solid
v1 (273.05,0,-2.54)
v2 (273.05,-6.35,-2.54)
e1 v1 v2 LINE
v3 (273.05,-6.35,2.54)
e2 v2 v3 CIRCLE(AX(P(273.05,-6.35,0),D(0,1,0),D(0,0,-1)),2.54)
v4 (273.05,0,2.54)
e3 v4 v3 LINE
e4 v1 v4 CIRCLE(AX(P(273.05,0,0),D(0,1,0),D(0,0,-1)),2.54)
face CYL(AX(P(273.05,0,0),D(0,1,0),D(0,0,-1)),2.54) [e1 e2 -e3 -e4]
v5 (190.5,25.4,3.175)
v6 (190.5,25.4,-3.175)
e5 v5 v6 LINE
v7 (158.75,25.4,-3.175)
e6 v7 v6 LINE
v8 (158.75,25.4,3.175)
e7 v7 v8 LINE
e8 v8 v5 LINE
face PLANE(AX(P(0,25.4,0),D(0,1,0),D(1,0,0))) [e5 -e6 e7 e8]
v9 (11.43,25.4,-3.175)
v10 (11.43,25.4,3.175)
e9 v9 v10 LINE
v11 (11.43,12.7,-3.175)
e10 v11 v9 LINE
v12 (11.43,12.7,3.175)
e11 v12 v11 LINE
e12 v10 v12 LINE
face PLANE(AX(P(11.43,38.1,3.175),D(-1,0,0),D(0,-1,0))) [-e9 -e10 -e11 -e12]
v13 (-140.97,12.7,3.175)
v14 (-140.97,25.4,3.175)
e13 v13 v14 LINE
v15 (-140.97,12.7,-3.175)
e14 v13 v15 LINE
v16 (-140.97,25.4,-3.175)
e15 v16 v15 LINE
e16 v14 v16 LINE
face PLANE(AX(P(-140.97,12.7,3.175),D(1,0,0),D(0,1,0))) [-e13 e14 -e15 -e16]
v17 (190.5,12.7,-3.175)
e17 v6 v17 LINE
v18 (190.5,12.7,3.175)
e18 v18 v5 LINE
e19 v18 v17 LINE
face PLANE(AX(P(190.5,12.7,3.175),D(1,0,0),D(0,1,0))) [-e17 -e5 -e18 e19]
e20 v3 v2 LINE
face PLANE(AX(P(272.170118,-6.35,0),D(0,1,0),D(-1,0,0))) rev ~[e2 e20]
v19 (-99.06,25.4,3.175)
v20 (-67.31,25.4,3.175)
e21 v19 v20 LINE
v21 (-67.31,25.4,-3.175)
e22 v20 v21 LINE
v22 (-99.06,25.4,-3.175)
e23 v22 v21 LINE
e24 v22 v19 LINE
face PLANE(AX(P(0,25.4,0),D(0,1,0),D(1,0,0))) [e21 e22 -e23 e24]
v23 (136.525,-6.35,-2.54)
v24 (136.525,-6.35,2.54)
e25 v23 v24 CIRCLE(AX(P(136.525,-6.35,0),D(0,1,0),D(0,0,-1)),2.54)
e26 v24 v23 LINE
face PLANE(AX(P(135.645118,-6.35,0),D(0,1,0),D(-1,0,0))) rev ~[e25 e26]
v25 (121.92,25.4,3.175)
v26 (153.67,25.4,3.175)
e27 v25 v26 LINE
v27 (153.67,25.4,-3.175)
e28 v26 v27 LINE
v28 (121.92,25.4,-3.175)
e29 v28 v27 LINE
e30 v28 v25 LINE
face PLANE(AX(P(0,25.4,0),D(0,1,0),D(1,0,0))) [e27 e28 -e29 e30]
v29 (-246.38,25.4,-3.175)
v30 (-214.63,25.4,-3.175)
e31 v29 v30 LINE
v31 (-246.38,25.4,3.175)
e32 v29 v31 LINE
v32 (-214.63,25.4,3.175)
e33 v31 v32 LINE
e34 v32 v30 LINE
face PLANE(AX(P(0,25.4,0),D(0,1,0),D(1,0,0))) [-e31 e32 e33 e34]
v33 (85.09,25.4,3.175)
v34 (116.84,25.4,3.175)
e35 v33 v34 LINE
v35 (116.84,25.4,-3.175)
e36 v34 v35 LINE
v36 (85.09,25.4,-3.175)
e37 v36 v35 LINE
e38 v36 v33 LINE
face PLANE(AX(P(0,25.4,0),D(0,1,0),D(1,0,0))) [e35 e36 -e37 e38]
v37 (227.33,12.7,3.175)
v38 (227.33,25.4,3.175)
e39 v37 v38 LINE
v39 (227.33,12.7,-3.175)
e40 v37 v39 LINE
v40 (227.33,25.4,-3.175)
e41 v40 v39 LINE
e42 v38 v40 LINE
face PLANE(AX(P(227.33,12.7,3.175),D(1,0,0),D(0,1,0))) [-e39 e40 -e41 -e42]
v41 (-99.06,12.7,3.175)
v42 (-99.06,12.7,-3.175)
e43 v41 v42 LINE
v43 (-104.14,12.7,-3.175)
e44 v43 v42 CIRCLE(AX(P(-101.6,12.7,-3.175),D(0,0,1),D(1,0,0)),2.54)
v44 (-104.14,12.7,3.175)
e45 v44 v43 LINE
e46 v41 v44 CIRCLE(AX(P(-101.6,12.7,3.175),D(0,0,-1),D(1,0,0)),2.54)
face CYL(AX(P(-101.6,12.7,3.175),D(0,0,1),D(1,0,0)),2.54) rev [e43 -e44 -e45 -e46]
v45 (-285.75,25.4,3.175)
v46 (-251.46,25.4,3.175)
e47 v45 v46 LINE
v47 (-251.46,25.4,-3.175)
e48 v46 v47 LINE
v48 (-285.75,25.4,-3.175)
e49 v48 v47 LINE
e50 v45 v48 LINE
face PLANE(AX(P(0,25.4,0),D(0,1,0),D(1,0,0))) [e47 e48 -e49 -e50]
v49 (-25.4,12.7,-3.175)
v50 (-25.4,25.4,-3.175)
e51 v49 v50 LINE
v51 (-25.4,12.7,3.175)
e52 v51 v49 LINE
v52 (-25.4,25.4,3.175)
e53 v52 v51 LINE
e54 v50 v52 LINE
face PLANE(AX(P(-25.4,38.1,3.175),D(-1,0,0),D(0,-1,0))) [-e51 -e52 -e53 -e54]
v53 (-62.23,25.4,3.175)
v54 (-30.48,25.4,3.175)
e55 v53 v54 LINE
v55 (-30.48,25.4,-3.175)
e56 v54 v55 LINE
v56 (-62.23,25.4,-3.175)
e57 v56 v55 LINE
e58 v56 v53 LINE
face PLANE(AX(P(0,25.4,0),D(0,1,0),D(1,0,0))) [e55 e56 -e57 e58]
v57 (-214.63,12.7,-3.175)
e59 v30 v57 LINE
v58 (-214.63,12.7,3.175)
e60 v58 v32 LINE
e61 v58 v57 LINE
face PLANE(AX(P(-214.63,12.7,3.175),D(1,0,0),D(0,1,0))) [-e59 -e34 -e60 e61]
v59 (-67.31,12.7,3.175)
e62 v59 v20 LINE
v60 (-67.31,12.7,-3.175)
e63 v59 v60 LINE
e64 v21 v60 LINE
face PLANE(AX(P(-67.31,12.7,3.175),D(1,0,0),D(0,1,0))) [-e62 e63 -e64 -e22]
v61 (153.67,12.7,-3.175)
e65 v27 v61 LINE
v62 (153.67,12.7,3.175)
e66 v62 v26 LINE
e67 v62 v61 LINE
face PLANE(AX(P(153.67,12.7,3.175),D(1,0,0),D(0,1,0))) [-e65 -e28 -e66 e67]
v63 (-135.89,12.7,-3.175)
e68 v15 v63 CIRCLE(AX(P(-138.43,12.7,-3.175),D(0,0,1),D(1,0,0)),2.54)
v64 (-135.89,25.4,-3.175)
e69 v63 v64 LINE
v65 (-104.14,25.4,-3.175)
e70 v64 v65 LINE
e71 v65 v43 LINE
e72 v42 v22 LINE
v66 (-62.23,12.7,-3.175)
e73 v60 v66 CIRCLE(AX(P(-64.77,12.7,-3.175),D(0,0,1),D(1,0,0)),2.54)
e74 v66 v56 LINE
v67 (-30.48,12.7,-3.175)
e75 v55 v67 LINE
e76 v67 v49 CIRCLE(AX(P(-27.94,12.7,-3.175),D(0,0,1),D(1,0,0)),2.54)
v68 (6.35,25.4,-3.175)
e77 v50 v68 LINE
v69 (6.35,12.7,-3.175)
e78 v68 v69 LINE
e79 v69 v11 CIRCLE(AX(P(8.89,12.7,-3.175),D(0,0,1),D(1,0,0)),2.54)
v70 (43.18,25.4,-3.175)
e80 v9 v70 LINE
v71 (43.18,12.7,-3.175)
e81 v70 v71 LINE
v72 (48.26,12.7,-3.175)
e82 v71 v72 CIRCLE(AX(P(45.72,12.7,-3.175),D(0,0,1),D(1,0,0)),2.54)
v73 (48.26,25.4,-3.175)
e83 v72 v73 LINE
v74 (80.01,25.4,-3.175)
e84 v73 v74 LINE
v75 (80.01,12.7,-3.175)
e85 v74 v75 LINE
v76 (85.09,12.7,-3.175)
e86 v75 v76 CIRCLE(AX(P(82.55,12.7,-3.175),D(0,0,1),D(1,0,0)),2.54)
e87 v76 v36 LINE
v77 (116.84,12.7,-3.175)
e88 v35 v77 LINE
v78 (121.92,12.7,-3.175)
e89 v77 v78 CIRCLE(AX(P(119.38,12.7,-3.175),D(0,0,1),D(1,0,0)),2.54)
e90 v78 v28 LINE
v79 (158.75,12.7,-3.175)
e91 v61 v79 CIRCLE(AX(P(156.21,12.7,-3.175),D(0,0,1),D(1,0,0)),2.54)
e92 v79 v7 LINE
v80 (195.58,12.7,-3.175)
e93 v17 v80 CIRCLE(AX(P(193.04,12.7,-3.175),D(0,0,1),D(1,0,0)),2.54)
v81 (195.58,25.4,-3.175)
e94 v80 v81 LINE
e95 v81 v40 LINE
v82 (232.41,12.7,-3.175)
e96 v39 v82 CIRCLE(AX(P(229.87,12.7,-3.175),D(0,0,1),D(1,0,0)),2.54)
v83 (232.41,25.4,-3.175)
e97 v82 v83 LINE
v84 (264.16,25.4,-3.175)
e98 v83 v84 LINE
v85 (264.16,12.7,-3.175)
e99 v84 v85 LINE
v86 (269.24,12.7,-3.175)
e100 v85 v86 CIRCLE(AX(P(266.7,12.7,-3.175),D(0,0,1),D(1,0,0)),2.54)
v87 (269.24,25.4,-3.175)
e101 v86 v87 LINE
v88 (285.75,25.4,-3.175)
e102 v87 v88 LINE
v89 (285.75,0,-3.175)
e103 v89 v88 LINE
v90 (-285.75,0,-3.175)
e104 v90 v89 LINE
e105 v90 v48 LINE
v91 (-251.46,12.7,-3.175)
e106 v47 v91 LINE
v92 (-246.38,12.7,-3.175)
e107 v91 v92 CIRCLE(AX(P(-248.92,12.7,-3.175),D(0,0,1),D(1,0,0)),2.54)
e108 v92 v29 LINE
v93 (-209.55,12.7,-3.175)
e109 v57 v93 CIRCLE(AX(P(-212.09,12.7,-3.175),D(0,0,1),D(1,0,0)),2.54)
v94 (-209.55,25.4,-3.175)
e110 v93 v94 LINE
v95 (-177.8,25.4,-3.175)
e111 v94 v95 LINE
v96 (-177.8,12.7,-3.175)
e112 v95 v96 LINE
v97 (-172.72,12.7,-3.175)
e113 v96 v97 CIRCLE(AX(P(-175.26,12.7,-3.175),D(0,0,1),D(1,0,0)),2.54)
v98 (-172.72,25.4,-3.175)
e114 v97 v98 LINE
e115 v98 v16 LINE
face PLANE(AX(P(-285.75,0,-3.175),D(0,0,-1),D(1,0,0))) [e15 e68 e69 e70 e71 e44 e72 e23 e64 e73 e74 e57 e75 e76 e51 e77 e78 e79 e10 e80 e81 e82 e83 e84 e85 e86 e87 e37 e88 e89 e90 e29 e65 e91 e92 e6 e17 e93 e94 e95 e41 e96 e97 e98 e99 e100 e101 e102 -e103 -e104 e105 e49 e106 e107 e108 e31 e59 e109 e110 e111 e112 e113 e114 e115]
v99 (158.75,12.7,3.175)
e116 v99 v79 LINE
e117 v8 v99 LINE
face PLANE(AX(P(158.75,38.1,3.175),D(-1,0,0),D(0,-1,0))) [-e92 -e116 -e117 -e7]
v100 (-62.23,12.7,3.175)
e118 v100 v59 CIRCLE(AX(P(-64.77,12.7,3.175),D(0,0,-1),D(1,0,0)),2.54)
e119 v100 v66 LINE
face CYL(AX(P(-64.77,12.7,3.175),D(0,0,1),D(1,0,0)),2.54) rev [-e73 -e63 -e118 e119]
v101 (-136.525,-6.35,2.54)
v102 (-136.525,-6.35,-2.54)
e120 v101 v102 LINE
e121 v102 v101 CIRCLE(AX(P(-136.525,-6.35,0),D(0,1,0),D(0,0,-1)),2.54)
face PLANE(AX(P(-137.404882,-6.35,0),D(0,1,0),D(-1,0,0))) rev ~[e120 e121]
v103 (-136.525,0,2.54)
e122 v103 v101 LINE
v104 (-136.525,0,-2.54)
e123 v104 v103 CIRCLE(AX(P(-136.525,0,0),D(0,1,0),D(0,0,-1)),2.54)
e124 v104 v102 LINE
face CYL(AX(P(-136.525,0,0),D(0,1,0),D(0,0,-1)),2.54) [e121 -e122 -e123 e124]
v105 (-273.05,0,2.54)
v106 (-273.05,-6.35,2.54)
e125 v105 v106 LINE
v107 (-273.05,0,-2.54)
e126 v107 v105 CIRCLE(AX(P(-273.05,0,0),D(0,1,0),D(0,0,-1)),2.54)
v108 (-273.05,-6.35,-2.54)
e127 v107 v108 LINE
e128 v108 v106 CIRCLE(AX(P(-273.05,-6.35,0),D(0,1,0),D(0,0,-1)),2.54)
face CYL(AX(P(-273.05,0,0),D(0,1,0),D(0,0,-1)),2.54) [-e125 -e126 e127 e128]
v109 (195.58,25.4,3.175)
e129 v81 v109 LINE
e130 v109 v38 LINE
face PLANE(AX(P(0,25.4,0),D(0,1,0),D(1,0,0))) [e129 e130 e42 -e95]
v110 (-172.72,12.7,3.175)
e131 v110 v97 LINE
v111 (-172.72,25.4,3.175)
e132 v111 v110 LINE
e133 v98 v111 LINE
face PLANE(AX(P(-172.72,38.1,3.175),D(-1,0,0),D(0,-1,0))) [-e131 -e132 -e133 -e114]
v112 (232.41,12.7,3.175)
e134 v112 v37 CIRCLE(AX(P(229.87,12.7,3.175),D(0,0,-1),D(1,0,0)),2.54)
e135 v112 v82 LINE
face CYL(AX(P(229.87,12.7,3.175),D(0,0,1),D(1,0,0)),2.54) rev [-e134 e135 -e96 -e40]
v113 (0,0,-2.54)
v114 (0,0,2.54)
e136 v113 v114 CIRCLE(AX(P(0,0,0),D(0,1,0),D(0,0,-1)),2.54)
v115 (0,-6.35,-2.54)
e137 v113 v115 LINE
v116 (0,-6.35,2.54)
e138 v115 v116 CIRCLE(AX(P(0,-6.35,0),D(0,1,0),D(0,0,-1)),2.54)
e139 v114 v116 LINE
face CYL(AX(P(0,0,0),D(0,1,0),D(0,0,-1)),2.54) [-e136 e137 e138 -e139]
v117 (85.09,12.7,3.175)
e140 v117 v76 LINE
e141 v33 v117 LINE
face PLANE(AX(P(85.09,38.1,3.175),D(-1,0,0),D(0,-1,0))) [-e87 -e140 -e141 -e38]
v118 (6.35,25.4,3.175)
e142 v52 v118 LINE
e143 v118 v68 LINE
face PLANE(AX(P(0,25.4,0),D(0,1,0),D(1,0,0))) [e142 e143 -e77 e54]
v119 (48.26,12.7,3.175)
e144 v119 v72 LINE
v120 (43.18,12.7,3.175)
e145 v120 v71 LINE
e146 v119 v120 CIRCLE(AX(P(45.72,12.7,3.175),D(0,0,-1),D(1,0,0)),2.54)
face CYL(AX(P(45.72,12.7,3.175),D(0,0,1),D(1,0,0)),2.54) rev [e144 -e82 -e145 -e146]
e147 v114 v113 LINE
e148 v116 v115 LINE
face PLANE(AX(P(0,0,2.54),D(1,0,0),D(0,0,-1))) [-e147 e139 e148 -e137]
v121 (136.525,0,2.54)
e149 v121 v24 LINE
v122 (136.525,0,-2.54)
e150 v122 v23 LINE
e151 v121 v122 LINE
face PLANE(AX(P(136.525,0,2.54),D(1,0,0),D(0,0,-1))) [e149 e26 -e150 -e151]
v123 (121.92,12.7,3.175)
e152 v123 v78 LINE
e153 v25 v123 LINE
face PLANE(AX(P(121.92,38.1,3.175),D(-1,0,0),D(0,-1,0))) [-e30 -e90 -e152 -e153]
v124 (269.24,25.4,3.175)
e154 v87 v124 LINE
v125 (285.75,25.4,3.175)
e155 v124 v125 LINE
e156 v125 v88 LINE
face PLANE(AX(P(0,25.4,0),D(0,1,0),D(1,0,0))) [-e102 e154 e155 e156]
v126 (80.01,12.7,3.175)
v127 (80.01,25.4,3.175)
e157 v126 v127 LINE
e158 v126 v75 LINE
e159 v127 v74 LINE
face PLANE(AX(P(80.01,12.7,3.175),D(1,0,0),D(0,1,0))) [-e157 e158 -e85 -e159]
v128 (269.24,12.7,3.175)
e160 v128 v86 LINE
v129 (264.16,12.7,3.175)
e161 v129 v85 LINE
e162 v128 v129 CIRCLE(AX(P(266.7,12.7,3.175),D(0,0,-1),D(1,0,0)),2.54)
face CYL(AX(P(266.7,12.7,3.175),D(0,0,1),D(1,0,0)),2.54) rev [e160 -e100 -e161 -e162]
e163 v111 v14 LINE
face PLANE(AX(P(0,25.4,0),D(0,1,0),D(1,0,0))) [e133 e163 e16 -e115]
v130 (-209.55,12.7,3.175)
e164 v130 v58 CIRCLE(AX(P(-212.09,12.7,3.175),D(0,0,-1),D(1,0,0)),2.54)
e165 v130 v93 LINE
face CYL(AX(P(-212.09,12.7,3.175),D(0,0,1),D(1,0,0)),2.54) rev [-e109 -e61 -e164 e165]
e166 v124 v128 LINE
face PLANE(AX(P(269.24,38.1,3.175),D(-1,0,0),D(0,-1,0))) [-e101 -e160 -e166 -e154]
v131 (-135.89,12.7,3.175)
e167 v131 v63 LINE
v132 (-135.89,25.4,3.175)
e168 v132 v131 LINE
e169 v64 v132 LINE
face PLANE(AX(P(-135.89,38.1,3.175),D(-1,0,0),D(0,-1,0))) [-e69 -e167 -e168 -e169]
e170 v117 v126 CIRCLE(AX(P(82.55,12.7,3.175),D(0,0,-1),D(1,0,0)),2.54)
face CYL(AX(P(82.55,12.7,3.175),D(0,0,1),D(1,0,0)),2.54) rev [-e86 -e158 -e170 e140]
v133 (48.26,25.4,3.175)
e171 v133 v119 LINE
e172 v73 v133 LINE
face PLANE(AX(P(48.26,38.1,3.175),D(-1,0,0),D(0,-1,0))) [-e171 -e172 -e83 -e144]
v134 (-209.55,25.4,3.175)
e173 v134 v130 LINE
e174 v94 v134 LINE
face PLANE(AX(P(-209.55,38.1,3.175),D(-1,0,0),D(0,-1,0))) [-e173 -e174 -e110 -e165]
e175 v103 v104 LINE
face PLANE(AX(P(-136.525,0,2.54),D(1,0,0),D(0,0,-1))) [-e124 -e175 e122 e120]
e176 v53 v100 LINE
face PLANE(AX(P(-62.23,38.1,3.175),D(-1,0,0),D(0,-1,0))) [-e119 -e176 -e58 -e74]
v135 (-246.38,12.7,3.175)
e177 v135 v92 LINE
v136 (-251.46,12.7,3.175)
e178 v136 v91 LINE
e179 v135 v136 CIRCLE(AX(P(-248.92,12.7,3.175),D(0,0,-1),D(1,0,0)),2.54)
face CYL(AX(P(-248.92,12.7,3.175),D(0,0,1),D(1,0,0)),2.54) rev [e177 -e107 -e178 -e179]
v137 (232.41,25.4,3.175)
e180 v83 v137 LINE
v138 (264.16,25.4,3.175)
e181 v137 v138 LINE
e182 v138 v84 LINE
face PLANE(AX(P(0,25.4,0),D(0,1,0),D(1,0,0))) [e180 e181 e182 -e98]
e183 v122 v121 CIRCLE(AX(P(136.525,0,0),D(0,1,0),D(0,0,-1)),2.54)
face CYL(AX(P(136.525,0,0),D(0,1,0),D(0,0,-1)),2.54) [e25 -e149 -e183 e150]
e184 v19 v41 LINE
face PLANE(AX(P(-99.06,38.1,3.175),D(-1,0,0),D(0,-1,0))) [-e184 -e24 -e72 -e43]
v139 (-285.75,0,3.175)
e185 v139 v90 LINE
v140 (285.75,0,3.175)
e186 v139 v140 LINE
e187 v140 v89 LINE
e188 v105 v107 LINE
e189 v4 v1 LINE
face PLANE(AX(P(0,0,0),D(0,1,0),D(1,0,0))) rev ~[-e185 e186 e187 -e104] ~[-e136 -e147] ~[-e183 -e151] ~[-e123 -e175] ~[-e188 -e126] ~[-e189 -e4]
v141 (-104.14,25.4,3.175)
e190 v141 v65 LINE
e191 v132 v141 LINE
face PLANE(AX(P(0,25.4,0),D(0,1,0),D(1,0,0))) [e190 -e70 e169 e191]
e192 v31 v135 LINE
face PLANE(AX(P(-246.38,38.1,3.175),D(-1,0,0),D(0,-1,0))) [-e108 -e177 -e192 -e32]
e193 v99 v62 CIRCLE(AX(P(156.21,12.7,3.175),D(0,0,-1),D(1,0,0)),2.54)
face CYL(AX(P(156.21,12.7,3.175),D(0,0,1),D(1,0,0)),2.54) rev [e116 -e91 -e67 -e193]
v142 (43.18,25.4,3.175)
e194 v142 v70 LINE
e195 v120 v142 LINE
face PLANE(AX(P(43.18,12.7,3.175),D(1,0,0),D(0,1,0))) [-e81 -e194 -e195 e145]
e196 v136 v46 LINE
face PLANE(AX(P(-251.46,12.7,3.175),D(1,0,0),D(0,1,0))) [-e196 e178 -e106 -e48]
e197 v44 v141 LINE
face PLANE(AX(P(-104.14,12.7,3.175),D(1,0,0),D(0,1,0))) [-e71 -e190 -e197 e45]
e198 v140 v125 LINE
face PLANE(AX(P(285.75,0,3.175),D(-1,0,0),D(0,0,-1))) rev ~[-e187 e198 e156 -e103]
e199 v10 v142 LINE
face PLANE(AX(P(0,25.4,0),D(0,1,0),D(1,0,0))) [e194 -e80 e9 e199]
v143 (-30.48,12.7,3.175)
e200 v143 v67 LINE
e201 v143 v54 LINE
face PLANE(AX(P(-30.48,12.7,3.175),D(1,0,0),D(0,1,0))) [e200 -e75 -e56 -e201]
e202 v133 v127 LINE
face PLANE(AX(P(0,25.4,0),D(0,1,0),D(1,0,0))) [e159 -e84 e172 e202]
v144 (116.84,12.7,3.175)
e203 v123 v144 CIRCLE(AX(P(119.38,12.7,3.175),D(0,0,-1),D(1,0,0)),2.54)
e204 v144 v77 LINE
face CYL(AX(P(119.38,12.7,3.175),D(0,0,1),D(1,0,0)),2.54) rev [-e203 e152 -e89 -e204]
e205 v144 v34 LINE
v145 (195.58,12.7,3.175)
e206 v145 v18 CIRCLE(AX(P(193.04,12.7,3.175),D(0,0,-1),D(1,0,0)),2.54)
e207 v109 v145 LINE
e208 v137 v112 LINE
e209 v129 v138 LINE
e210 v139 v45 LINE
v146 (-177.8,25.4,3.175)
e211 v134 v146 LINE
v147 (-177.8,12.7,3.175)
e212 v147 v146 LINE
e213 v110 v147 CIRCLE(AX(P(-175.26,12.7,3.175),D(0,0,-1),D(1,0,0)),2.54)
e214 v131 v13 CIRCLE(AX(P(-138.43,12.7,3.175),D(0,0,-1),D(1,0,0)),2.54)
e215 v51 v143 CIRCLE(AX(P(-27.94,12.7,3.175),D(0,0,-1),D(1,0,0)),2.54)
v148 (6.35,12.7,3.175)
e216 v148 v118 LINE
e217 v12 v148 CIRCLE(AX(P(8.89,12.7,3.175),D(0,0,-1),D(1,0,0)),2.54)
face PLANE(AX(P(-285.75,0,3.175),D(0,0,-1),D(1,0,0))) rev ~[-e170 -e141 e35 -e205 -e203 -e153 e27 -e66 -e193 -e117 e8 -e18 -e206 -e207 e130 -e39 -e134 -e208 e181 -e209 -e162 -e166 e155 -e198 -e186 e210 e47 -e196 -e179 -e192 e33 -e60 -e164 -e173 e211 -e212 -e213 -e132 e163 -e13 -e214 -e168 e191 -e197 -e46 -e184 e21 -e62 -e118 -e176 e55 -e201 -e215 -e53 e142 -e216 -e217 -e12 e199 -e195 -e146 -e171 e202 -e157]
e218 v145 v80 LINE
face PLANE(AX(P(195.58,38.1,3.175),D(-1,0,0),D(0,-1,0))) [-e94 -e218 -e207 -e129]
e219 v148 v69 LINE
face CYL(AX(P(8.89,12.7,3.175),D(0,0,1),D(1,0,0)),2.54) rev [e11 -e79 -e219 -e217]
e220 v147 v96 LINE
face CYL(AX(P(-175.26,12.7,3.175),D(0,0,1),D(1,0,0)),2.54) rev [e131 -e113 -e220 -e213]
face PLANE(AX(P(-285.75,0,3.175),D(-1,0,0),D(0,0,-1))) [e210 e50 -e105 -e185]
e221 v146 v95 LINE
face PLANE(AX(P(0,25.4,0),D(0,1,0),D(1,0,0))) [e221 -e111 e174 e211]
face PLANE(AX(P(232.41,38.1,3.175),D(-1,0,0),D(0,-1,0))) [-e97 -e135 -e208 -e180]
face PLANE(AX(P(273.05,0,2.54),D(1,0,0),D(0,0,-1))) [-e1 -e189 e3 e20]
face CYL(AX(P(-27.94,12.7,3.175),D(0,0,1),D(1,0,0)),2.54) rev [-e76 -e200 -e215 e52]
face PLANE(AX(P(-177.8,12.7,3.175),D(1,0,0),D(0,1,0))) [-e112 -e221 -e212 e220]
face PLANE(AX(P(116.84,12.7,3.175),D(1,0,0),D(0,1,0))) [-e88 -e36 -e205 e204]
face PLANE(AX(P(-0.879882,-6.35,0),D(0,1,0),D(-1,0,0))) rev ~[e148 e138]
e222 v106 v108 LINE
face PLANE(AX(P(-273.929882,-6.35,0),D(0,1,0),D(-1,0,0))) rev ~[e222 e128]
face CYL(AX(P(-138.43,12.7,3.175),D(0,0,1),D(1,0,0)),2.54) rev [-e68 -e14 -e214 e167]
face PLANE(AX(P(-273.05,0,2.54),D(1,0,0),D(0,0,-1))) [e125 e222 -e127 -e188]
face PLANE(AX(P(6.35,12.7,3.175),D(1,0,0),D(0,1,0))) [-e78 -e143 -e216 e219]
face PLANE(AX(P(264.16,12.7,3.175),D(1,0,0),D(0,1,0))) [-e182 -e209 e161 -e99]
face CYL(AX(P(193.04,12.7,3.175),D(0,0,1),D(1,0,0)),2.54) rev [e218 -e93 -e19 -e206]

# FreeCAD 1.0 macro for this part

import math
import FreeCAD as App
import Part
import Sketcher
Q = App.Units.Quantity

doc = App.newDocument("Part")
body = doc.addObject("PartDesign::Body", "Body")

sketch1 = body.newObject("Sketcher::SketchObject", "Sketch")
sketch1.AttachmentSupport = (doc.getObject("XZ_Plane"), [""])
sketch1.MapMode = "FlatFace"
sketch1.addGeometry(Part.LineSegment(App.Vector(-285.75, -3.175, 0), App.Vector(-285.75, 3.175, 0)), False)
sketch1.addGeometry(Part.LineSegment(App.Vector(-285.75, 3.175, 0), App.Vector(285.75, 3.175, 0)), False)
sketch1.addGeometry(Part.LineSegment(App.Vector(285.75, 3.175, 0), App.Vector(285.75, -3.175, 0)), False)
sketch1.addGeometry(Part.LineSegment(App.Vector(285.75, -3.175, 0), App.Vector(-285.75, -3.175, 0)), False)
sketch1.addConstraint(Sketcher.Constraint("Coincident", 0, 2, 1, 1))
sketch1.addConstraint(Sketcher.Constraint("Coincident", 1, 2, 2, 1))
sketch1.addConstraint(Sketcher.Constraint("Coincident", 2, 2, 3, 1))
sketch1.addConstraint(Sketcher.Constraint("Coincident", 3, 2, 0, 1))
sketch1.addConstraint(Sketcher.Constraint("Vertical", 0))
sketch1.addConstraint(Sketcher.Constraint("Horizontal", 1))
sketch1.addConstraint(Sketcher.Constraint("Vertical", 2))
sketch1.addConstraint(Sketcher.Constraint("Horizontal", 3))
sketch1.addConstraint(Sketcher.Constraint("Symmetric", 0, 2, 2, 2, -1, 1))
sketch1.addConstraint(Sketcher.Constraint("DistanceX", 1, 1, 1, 2, Q("22.5 in")))
sketch1.addConstraint(Sketcher.Constraint("DistanceY", 0, 1, 0, 2, Q("0.25 in")))
pad1 = body.newObject("PartDesign::Pad", "Pad")
pad1.Profile = sketch1
pad1.Length = Q("1 in")
pad1.Reversed = True

sketch2 = body.newObject("Sketcher::SketchObject", "Sketch001")
sketch2.AttachmentSupport = (doc.getObject("XZ_Plane"), [""])
sketch2.MapMode = "FlatFace"
sketch2.addGeometry(Part.LineSegment(App.Vector(-273.05, -2.54, 0), App.Vector(-273.05, 2.54, 0)), False)
sketch2.addGeometry(Part.ArcOfCircle(Part.Circle(App.Vector(-273.05, 0, 0), App.Vector(0, 0, 1), 2.54), math.radians(90), math.radians(270)), False)
sketch2.addGeometry(Part.LineSegment(App.Vector(-136.525, -2.54, 0), App.Vector(-136.525, 2.54, 0)), False)
sketch2.addGeometry(Part.ArcOfCircle(Part.Circle(App.Vector(-136.525, 0, 0), App.Vector(0, 0, 1), 2.54), math.radians(90), math.radians(270)), False)
sketch2.addGeometry(Part.LineSegment(App.Vector(0, -2.54, 0), App.Vector(0, 2.54, 0)), False)
sketch2.addGeometry(Part.ArcOfCircle(Part.Circle(App.Vector(0, 0, 0), App.Vector(0, 0, 1), 2.54), math.radians(90), math.radians(270)), False)
sketch2.addGeometry(Part.LineSegment(App.Vector(136.525, -2.54, 0), App.Vector(136.525, 2.54, 0)), False)
sketch2.addGeometry(Part.ArcOfCircle(Part.Circle(App.Vector(136.525, 0, 0), App.Vector(0, 0, 1), 2.54), math.radians(90), math.radians(270)), False)
sketch2.addGeometry(Part.LineSegment(App.Vector(273.05, -2.54, 0), App.Vector(273.05, 2.54, 0)), False)
sketch2.addGeometry(Part.ArcOfCircle(Part.Circle(App.Vector(273.05, 0, 0), App.Vector(0, 0, 1), 2.54), math.radians(90), math.radians(270)), False)
sketch2.addConstraint(Sketcher.Constraint("Coincident", 0, 1, 1, 2))
sketch2.addConstraint(Sketcher.Constraint("Coincident", 1, 1, 0, 2))
sketch2.addConstraint(Sketcher.Constraint("Coincident", 2, 1, 3, 2))
sketch2.addConstraint(Sketcher.Constraint("Coincident", 3, 1, 2, 2))
sketch2.addConstraint(Sketcher.Constraint("Coincident", 4, 1, 5, 2))
sketch2.addConstraint(Sketcher.Constraint("Coincident", 5, 1, 4, 2))
sketch2.addConstraint(Sketcher.Constraint("Coincident", 6, 1, 7, 2))
sketch2.addConstraint(Sketcher.Constraint("Coincident", 7, 1, 6, 2))
sketch2.addConstraint(Sketcher.Constraint("Coincident", 8, 1, 9, 2))
sketch2.addConstraint(Sketcher.Constraint("Coincident", 9, 1, 8, 2))
sketch2.addConstraint(Sketcher.Constraint("Vertical", 0))
sketch2.addConstraint(Sketcher.Constraint("Vertical", 2))
sketch2.addConstraint(Sketcher.Constraint("Vertical", 4))
sketch2.addConstraint(Sketcher.Constraint("Vertical", 6))
sketch2.addConstraint(Sketcher.Constraint("Vertical", 8))
sketch2.addConstraint(Sketcher.Constraint("Coincident", 5, 3, -1, 1))
sketch2.addConstraint(Sketcher.Constraint("Equal", 1, 3))
sketch2.addConstraint(Sketcher.Constraint("Equal", 3, 5))
sketch2.addConstraint(Sketcher.Constraint("Equal", 5, 7))
sketch2.addConstraint(Sketcher.Constraint("Equal", 7, 9))
sketch2.addConstraint(Sketcher.Constraint("Symmetric", 3, 3, 7, 3, -1, 1))
sketch2.addConstraint(Sketcher.Constraint("Symmetric", 1, 3, 9, 3, -1, 1))
sketch2.addConstraint(Sketcher.Constraint("Symmetric", 2, 1, 6, 1, -2))
sketch2.addConstraint(Sketcher.Constraint("Symmetric", 0, 1, 8, 1, -2))
sketch2.addConstraint(Sketcher.Constraint("PointOnObject", 4, 1, -2))
sketch2.addConstraint(Sketcher.Constraint("Vertical", 1, 3, 0, 1))
sketch2.addConstraint(Sketcher.Constraint("Vertical", 3, 3, 2, 1))
sketch2.addConstraint(Sketcher.Constraint("Radius", 1, Q("0.1 in")))
sketch2.addConstraint(Sketcher.Constraint("DistanceX", 1, 3, 9, 3, Q("21.5 in")))
sketch2.addConstraint(Sketcher.Constraint("DistanceX", 3, 3, 7, 3, Q("10.75 in")))
pad2 = body.newObject("PartDesign::Pad", "Pad001")
pad2.Profile = sketch2
pad2.Length = Q("0.25 in")

sketch3 = body.newObject("Sketcher::SketchObject", "Sketch002")
sketch3.AttachmentSupport = (doc.getObject("XY_Plane"), [""])
sketch3.MapMode = "FlatFace"
sketch3.AttachmentOffset = App.Placement(App.Vector(0, 0, 0.125 * 25.4), App.Rotation())
sketch3.addGeometry(Part.LineSegment(App.Vector(-246.38, 12.7, 0), App.Vector(-246.38, 38.1, 0)), False)
sketch3.addGeometry(Part.ArcOfCircle(Part.Circle(App.Vector(-248.92, 38.1, 0), App.Vector(0, 0, 1), 2.54), math.radians(0), math.radians(180)), False)
sketch3.addGeometry(Part.LineSegment(App.Vector(-251.46, 38.1, 0), App.Vector(-251.46, 12.7, 0)), False)
sketch3.addGeometry(Part.ArcOfCircle(Part.Circle(App.Vector(-248.92, 12.7, 0), App.Vector(0, 0, 1), 2.54), math.radians(180), math.radians(360)), False)
sketch3.addGeometry(Part.LineSegment(App.Vector(-209.55, 12.7, 0), App.Vector(-209.55, 38.1, 0)), False)
sketch3.addGeometry(Part.ArcOfCircle(Part.Circle(App.Vector(-212.09, 38.1, 0), App.Vector(0, 0, 1), 2.54), math.radians(0), math.radians(180)), False)
sketch3.addGeometry(Part.LineSegment(App.Vector(-214.63, 38.1, 0), App.Vector(-214.63, 12.7, 0)), False)
sketch3.addGeometry(Part.ArcOfCircle(Part.Circle(App.Vector(-212.09, 12.7, 0), App.Vector(0, 0, 1), 2.54), math.radians(180), math.radians(360)), False)
sketch3.addGeometry(Part.LineSegment(App.Vector(-172.72, 12.7, 0), App.Vector(-172.72, 38.1, 0)), False)
sketch3.addGeometry(Part.ArcOfCircle(Part.Circle(App.Vector(-175.26, 38.1, 0), App.Vector(0, 0, 1), 2.54), math.radians(0), math.radians(180)), False)
sketch3.addGeometry(Part.LineSegment(App.Vector(-177.8, 38.1, 0), App.Vector(-177.8, 12.7, 0)), False)
sketch3.addGeometry(Part.ArcOfCircle(Part.Circle(App.Vector(-175.26, 12.7, 0), App.Vector(0, 0, 1), 2.54), math.radians(180), math.radians(360)), False)
sketch3.addGeometry(Part.LineSegment(App.Vector(-135.89, 12.7, 0), App.Vector(-135.89, 38.1, 0)), False)
sketch3.addGeometry(Part.ArcOfCircle(Part.Circle(App.Vector(-138.43, 38.1, 0), App.Vector(0, 0, 1), 2.54), math.radians(0), math.radians(180)), False)
sketch3.addGeometry(Part.LineSegment(App.Vector(-140.97, 38.1, 0), App.Vector(-140.97, 12.7, 0)), False)
sketch3.addGeometry(Part.ArcOfCircle(Part.Circle(App.Vector(-138.43, 12.7, 0), App.Vector(0, 0, 1), 2.54), math.radians(180), math.radians(360)), False)
sketch3.addGeometry(Part.LineSegment(App.Vector(-99.06, 12.7, 0), App.Vector(-99.06, 38.1, 0)), False)
sketch3.addGeometry(Part.ArcOfCircle(Part.Circle(App.Vector(-101.6, 38.1, 0), App.Vector(0, 0, 1), 2.54), math.radians(0), math.radians(180)), False)
sketch3.addGeometry(Part.LineSegment(App.Vector(-104.14, 38.1, 0), App.Vector(-104.14, 12.7, 0)), False)
sketch3.addGeometry(Part.ArcOfCircle(Part.Circle(App.Vector(-101.6, 12.7, 0), App.Vector(0, 0, 1), 2.54), math.radians(180), math.radians(360)), False)
sketch3.addGeometry(Part.LineSegment(App.Vector(-62.23, 12.7, 0), App.Vector(-62.23, 38.1, 0)), False)
sketch3.addGeometry(Part.ArcOfCircle(Part.Circle(App.Vector(-64.77, 38.1, 0), App.Vector(0, 0, 1), 2.54), math.radians(0), math.radians(180)), False)
sketch3.addGeometry(Part.LineSegment(App.Vector(-67.31, 38.1, 0), App.Vector(-67.31, 12.7, 0)), False)
sketch3.addGeometry(Part.ArcOfCircle(Part.Circle(App.Vector(-64.77, 12.7, 0), App.Vector(0, 0, 1), 2.54), math.radians(180), math.radians(360)), False)
sketch3.addGeometry(Part.LineSegment(App.Vector(-25.4, 12.7, 0), App.Vector(-25.4, 38.1, 0)), False)
sketch3.addGeometry(Part.ArcOfCircle(Part.Circle(App.Vector(-27.94, 38.1, 0), App.Vector(0, 0, 1), 2.54), math.radians(0), math.radians(180)), False)
sketch3.addGeometry(Part.LineSegment(App.Vector(-30.48, 38.1, 0), App.Vector(-30.48, 12.7, 0)), False)
sketch3.addGeometry(Part.ArcOfCircle(Part.Circle(App.Vector(-27.94, 12.7, 0), App.Vector(0, 0, 1), 2.54), math.radians(180), math.radians(360)), False)
sketch3.addGeometry(Part.LineSegment(App.Vector(11.43, 12.7, 0), App.Vector(11.43, 38.1, 0)), False)
sketch3.addGeometry(Part.ArcOfCircle(Part.Circle(App.Vector(8.89, 38.1, 0), App.Vector(0, 0, 1), 2.54), math.radians(0), math.radians(180)), False)
sketch3.addGeometry(Part.LineSegment(App.Vector(6.35, 38.1, 0), App.Vector(6.35, 12.7, 0)), False)
sketch3.addGeometry(Part.ArcOfCircle(Part.Circle(App.Vector(8.89, 12.7, 0), App.Vector(0, 0, 1), 2.54), math.radians(180), math.radians(360)), False)
sketch3.addGeometry(Part.LineSegment(App.Vector(48.26, 12.7, 0), App.Vector(48.26, 38.1, 0)), False)
sketch3.addGeometry(Part.ArcOfCircle(Part.Circle(App.Vector(45.72, 38.1, 0), App.Vector(0, 0, 1), 2.54), math.radians(0), math.radians(180)), False)
sketch3.addGeometry(Part.LineSegment(App.Vector(43.18, 38.1, 0), App.Vector(43.18, 12.7, 0)), False)
sketch3.addGeometry(Part.ArcOfCircle(Part.Circle(App.Vector(45.72, 12.7, 0), App.Vector(0, 0, 1), 2.54), math.radians(180), math.radians(360)), False)
sketch3.addGeometry(Part.LineSegment(App.Vector(85.09, 12.7, 0), App.Vector(85.09, 38.1, 0)), False)
sketch3.addGeometry(Part.ArcOfCircle(Part.Circle(App.Vector(82.55, 38.1, 0), App.Vector(0, 0, 1), 2.54), math.radians(0), math.radians(180)), False)
sketch3.addGeometry(Part.LineSegment(App.Vector(80.01, 38.1, 0), App.Vector(80.01, 12.7, 0)), False)
sketch3.addGeometry(Part.ArcOfCircle(Part.Circle(App.Vector(82.55, 12.7, 0), App.Vector(0, 0, 1), 2.54), math.radians(180), math.radians(360)), False)
sketch3.addGeometry(Part.LineSegment(App.Vector(121.92, 12.7, 0), App.Vector(121.92, 38.1, 0)), False)
sketch3.addGeometry(Part.ArcOfCircle(Part.Circle(App.Vector(119.38, 38.1, 0), App.Vector(0, 0, 1), 2.54), math.radians(0), math.radians(180)), False)
sketch3.addGeometry(Part.LineSegment(App.Vector(116.84, 38.1, 0), App.Vector(116.84, 12.7, 0)), False)
sketch3.addGeometry(Part.ArcOfCircle(Part.Circle(App.Vector(119.38, 12.7, 0), App.Vector(0, 0, 1), 2.54), math.radians(180), math.radians(360)), False)
sketch3.addGeometry(Part.LineSegment(App.Vector(158.75, 12.7, 0), App.Vector(158.75, 38.1, 0)), False)
sketch3.addGeometry(Part.ArcOfCircle(Part.Circle(App.Vector(156.21, 38.1, 0), App.Vector(0, 0, 1), 2.54), math.radians(0), math.radians(180)), False)
sketch3.addGeometry(Part.LineSegment(App.Vector(153.67, 38.1, 0), App.Vector(153.67, 12.7, 0)), False)
sketch3.addGeometry(Part.ArcOfCircle(Part.Circle(App.Vector(156.21, 12.7, 0), App.Vector(0, 0, 1), 2.54), math.radians(180), math.radians(360)), False)
sketch3.addGeometry(Part.LineSegment(App.Vector(195.58, 12.7, 0), App.Vector(195.58, 38.1, 0)), False)
sketch3.addGeometry(Part.ArcOfCircle(Part.Circle(App.Vector(193.04, 38.1, 0), App.Vector(0, 0, 1), 2.54), math.radians(0), math.radians(180)), False)
sketch3.addGeometry(Part.LineSegment(App.Vector(190.5, 38.1, 0), App.Vector(190.5, 12.7, 0)), False)
sketch3.addGeometry(Part.ArcOfCircle(Part.Circle(App.Vector(193.04, 12.7, 0), App.Vector(0, 0, 1), 2.54), math.radians(180), math.radians(360)), False)
sketch3.addGeometry(Part.LineSegment(App.Vector(232.41, 12.7, 0), App.Vector(232.41, 38.1, 0)), False)
sketch3.addGeometry(Part.ArcOfCircle(Part.Circle(App.Vector(229.87, 38.1, 0), App.Vector(0, 0, 1), 2.54), math.radians(0), math.radians(180)), False)
sketch3.addGeometry(Part.LineSegment(App.Vector(227.33, 38.1, 0), App.Vector(227.33, 12.7, 0)), False)
sketch3.addGeometry(Part.ArcOfCircle(Part.Circle(App.Vector(229.87, 12.7, 0), App.Vector(0, 0, 1), 2.54), math.radians(180), math.radians(360)), False)
sketch3.addGeometry(Part.LineSegment(App.Vector(269.24, 12.7, 0), App.Vector(269.24, 38.1, 0)), False)
sketch3.addGeometry(Part.ArcOfCircle(Part.Circle(App.Vector(266.7, 38.1, 0), App.Vector(0, 0, 1), 2.54), math.radians(0), math.radians(180)), False)
sketch3.addGeometry(Part.LineSegment(App.Vector(264.16, 38.1, 0), App.Vector(264.16, 12.7, 0)), False)
sketch3.addGeometry(Part.ArcOfCircle(Part.Circle(App.Vector(266.7, 12.7, 0), App.Vector(0, 0, 1), 2.54), math.radians(180), math.radians(360)), False)
sketch3.addConstraint(Sketcher.Constraint("Tangent", 0, 2, 1, 1))
sketch3.addConstraint(Sketcher.Constraint("Tangent", 1, 2, 2, 1))
sketch3.addConstraint(Sketcher.Constraint("Tangent", 2, 2, 3, 1))
sketch3.addConstraint(Sketcher.Constraint("Tangent", 3, 2, 0, 1))
sketch3.addConstraint(Sketcher.Constraint("Tangent", 4, 2, 5, 1))
sketch3.addConstraint(Sketcher.Constraint("Tangent", 5, 2, 6, 1))
sketch3.addConstraint(Sketcher.Constraint("Tangent", 6, 2, 7, 1))
sketch3.addConstraint(Sketcher.Constraint("Tangent", 7, 2, 4, 1))
sketch3.addConstraint(Sketcher.Constraint("Tangent", 8, 2, 9, 1))
sketch3.addConstraint(Sketcher.Constraint("Tangent", 9, 2, 10, 1))
sketch3.addConstraint(Sketcher.Constraint("Tangent", 10, 2, 11, 1))
sketch3.addConstraint(Sketcher.Constraint("Tangent", 11, 2, 8, 1))
sketch3.addConstraint(Sketcher.Constraint("Tangent", 12, 2, 13, 1))
sketch3.addConstraint(Sketcher.Constraint("Tangent", 13, 2, 14, 1))
sketch3.addConstraint(Sketcher.Constraint("Tangent", 14, 2, 15, 1))
sketch3.addConstraint(Sketcher.Constraint("Tangent", 15, 2, 12, 1))
sketch3.addConstraint(Sketcher.Constraint("Tangent", 16, 2, 17, 1))
sketch3.addConstraint(Sketcher.Constraint("Tangent", 17, 2, 18, 1))
sketch3.addConstraint(Sketcher.Constraint("Tangent", 18, 2, 19, 1))
sketch3.addConstraint(Sketcher.Constraint("Tangent", 19, 2, 16, 1))
sketch3.addConstraint(Sketcher.Constraint("Tangent", 20, 2, 21, 1))
sketch3.addConstraint(Sketcher.Constraint("Tangent", 21, 2, 22, 1))
sketch3.addConstraint(Sketcher.Constraint("Tangent", 22, 2, 23, 1))
sketch3.addConstraint(Sketcher.Constraint("Tangent", 23, 2, 20, 1))
sketch3.addConstraint(Sketcher.Constraint("Tangent", 24, 2, 25, 1))
sketch3.addConstraint(Sketcher.Constraint("Tangent", 25, 2, 26, 1))
sketch3.addConstraint(Sketcher.Constraint("Tangent", 26, 2, 27, 1))
sketch3.addConstraint(Sketcher.Constraint("Tangent", 27, 2, 24, 1))
sketch3.addConstraint(Sketcher.Constraint("Tangent", 28, 2, 29, 1))
sketch3.addConstraint(Sketcher.Constraint("Tangent", 29, 2, 30, 1))
sketch3.addConstraint(Sketcher.Constraint("Tangent", 30, 2, 31, 1))
sketch3.addConstraint(Sketcher.Constraint("Tangent", 31, 2, 28, 1))
sketch3.addConstraint(Sketcher.Constraint("Tangent", 32, 2, 33, 1))
sketch3.addConstraint(Sketcher.Constraint("Tangent", 33, 2, 34, 1))
sketch3.addConstraint(Sketcher.Constraint("Tangent", 34, 2, 35, 1))
sketch3.addConstraint(Sketcher.Constraint("Tangent", 35, 2, 32, 1))
sketch3.addConstraint(Sketcher.Constraint("Tangent", 36, 2, 37, 1))
sketch3.addConstraint(Sketcher.Constraint("Tangent", 37, 2, 38, 1))
sketch3.addConstraint(Sketcher.Constraint("Tangent", 38, 2, 39, 1))
sketch3.addConstraint(Sketcher.Constraint("Tangent", 39, 2, 36, 1))
sketch3.addConstraint(Sketcher.Constraint("Tangent", 40, 2, 41, 1))
sketch3.addConstraint(Sketcher.Constraint("Tangent", 41, 2, 42, 1))
sketch3.addConstraint(Sketcher.Constraint("Tangent", 42, 2, 43, 1))
sketch3.addConstraint(Sketcher.Constraint("Tangent", 43, 2, 40, 1))
sketch3.addConstraint(Sketcher.Constraint("Tangent", 44, 2, 45, 1))
sketch3.addConstraint(Sketcher.Constraint("Tangent", 45, 2, 46, 1))
sketch3.addConstraint(Sketcher.Constraint("Tangent", 46, 2, 47, 1))
sketch3.addConstraint(Sketcher.Constraint("Tangent", 47, 2, 44, 1))
sketch3.addConstraint(Sketcher.Constraint("Tangent", 48, 2, 49, 1))
sketch3.addConstraint(Sketcher.Constraint("Tangent", 49, 2, 50, 1))
sketch3.addConstraint(Sketcher.Constraint("Tangent", 50, 2, 51, 1))
sketch3.addConstraint(Sketcher.Constraint("Tangent", 51, 2, 48, 1))
sketch3.addConstraint(Sketcher.Constraint("Tangent", 52, 2, 53, 1))
sketch3.addConstraint(Sketcher.Constraint("Tangent", 53, 2, 54, 1))
sketch3.addConstraint(Sketcher.Constraint("Tangent", 54, 2, 55, 1))
sketch3.addConstraint(Sketcher.Constraint("Tangent", 55, 2, 52, 1))
sketch3.addConstraint(Sketcher.Constraint("Tangent", 56, 2, 57, 1))
sketch3.addConstraint(Sketcher.Constraint("Tangent", 57, 2, 58, 1))
sketch3.addConstraint(Sketcher.Constraint("Tangent", 58, 2, 59, 1))
sketch3.addConstraint(Sketcher.Constraint("Tangent", 59, 2, 56, 1))
sketch3.addConstraint(Sketcher.Constraint("Vertical", 0))
sketch3.addConstraint(Sketcher.Constraint("Vertical", 2))
sketch3.addConstraint(Sketcher.Constraint("Vertical", 4))
sketch3.addConstraint(Sketcher.Constraint("Vertical", 6))
sketch3.addConstraint(Sketcher.Constraint("Vertical", 8))
sketch3.addConstraint(Sketcher.Constraint("Vertical", 10))
sketch3.addConstraint(Sketcher.Constraint("Vertical", 12))
sketch3.addConstraint(Sketcher.Constraint("Vertical", 14))
sketch3.addConstraint(Sketcher.Constraint("Vertical", 16))
sketch3.addConstraint(Sketcher.Constraint("Vertical", 18))
sketch3.addConstraint(Sketcher.Constraint("Vertical", 20))
sketch3.addConstraint(Sketcher.Constraint("Vertical", 22))
sketch3.addConstraint(Sketcher.Constraint("Vertical", 24))
sketch3.addConstraint(Sketcher.Constraint("Vertical", 26))
sketch3.addConstraint(Sketcher.Constraint("Vertical", 28))
sketch3.addConstraint(Sketcher.Constraint("Vertical", 30))
sketch3.addConstraint(Sketcher.Constraint("Vertical", 32))
sketch3.addConstraint(Sketcher.Constraint("Vertical", 34))
sketch3.addConstraint(Sketcher.Constraint("Vertical", 36))
sketch3.addConstraint(Sketcher.Constraint("Vertical", 38))
sketch3.addConstraint(Sketcher.Constraint("Vertical", 40))
sketch3.addConstraint(Sketcher.Constraint("Vertical", 42))
sketch3.addConstraint(Sketcher.Constraint("Vertical", 44))
sketch3.addConstraint(Sketcher.Constraint("Vertical", 46))
sketch3.addConstraint(Sketcher.Constraint("Vertical", 48))
sketch3.addConstraint(Sketcher.Constraint("Vertical", 50))
sketch3.addConstraint(Sketcher.Constraint("Vertical", 52))
sketch3.addConstraint(Sketcher.Constraint("Vertical", 54))
sketch3.addConstraint(Sketcher.Constraint("Vertical", 56))
sketch3.addConstraint(Sketcher.Constraint("Vertical", 58))
sketch3.addConstraint(Sketcher.Constraint("Equal", 3, 5))
sketch3.addConstraint(Sketcher.Constraint("Equal", 7, 9))
sketch3.addConstraint(Sketcher.Constraint("Equal", 11, 13))
sketch3.addConstraint(Sketcher.Constraint("Equal", 15, 17))
sketch3.addConstraint(Sketcher.Constraint("Equal", 19, 21))
sketch3.addConstraint(Sketcher.Constraint("Equal", 23, 25))
sketch3.addConstraint(Sketcher.Constraint("Equal", 27, 29))
sketch3.addConstraint(Sketcher.Constraint("Equal", 31, 33))
sketch3.addConstraint(Sketcher.Constraint("Equal", 35, 37))
sketch3.addConstraint(Sketcher.Constraint("Equal", 39, 41))
sketch3.addConstraint(Sketcher.Constraint("Equal", 43, 45))
sketch3.addConstraint(Sketcher.Constraint("Equal", 47, 49))
sketch3.addConstraint(Sketcher.Constraint("Equal", 51, 53))
sketch3.addConstraint(Sketcher.Constraint("Equal", 55, 57))
sketch3.addConstraint(Sketcher.Constraint("Horizontal", 1, 3, 5, 3))
sketch3.addConstraint(Sketcher.Constraint("Horizontal", 3, 3, 7, 3))
sketch3.addConstraint(Sketcher.Constraint("Horizontal", 5, 3, 9, 3))
sketch3.addConstraint(Sketcher.Constraint("Horizontal", 7, 3, 11, 3))
sketch3.addConstraint(Sketcher.Constraint("Horizontal", 9, 3, 13, 3))
sketch3.addConstraint(Sketcher.Constraint("Horizontal", 11, 3, 15, 3))
sketch3.addConstraint(Sketcher.Constraint("Horizontal", 13, 3, 17, 3))
sketch3.addConstraint(Sketcher.Constraint("Horizontal", 15, 3, 19, 3))
sketch3.addConstraint(Sketcher.Constraint("Horizontal", 17, 3, 21, 3))
sketch3.addConstraint(Sketcher.Constraint("Horizontal", 19, 3, 23, 3))
sketch3.addConstraint(Sketcher.Constraint("Horizontal", 21, 3, 25, 3))
sketch3.addConstraint(Sketcher.Constraint("Horizontal", 23, 3, 27, 3))
sketch3.addConstraint(Sketcher.Constraint("Horizontal", 25, 3, 29, 3))
sketch3.addConstraint(Sketcher.Constraint("Horizontal", 27, 3, 31, 3))
sketch3.addConstraint(Sketcher.Constraint("Horizontal", 29, 3, 33, 3))
sketch3.addConstraint(Sketcher.Constraint("Horizontal", 31, 3, 35, 3))
sketch3.addConstraint(Sketcher.Constraint("Horizontal", 33, 3, 37, 3))
sketch3.addConstraint(Sketcher.Constraint("Horizontal", 35, 3, 39, 3))
sketch3.addConstraint(Sketcher.Constraint("Horizontal", 37, 3, 41, 3))
sketch3.addConstraint(Sketcher.Constraint("Horizontal", 39, 3, 43, 3))
sketch3.addConstraint(Sketcher.Constraint("Horizontal", 41, 3, 45, 3))
sketch3.addConstraint(Sketcher.Constraint("Horizontal", 43, 3, 47, 3))
sketch3.addConstraint(Sketcher.Constraint("Horizontal", 45, 3, 49, 3))
sketch3.addConstraint(Sketcher.Constraint("Horizontal", 47, 3, 51, 3))
sketch3.addConstraint(Sketcher.Constraint("Horizontal", 49, 3, 53, 3))
sketch3.addConstraint(Sketcher.Constraint("Horizontal", 51, 3, 55, 3))
sketch3.addConstraint(Sketcher.Constraint("Horizontal", 53, 3, 57, 3))
sketch3.addConstraint(Sketcher.Constraint("Horizontal", 55, 3, 59, 3))
sketch3.addConstraint(Sketcher.Constraint("Radius", 1, Q("0.1 in")))
sketch3.addConstraint(Sketcher.Constraint("DistanceY", 0, 1, 0, 2, Q("1 in")))
sketch3.addConstraint(Sketcher.Constraint("DistanceX", 17, 3, -1, 1, Q("4 in")))
sketch3.addConstraint(Sketcher.Constraint("DistanceX", 9, 2, -1, 1, Q("7 in")))
sketch3.addConstraint(Sketcher.Constraint("DistanceX", 24, 2, -1, 1, Q("1 in")))
sketch3.addConstraint(Sketcher.Constraint("DistanceX", 1, 3, -1, 1, Q("9.8 in")))
sketch3.addConstraint(Sketcher.Constraint("DistanceY", -1, 1, 1, 3, Q("1.5 in")))
sketch3.addConstraint(Sketcher.Constraint("DistanceX", -1, 1, 33, 3, Q("1.8 in")))
sketch3.addConstraint(Sketcher.Constraint("DistanceX", -1, 1, 41, 3, Q("4.7 in")))
sketch3.addConstraint(Sketcher.Constraint("DistanceX", -1, 1, 49, 3, Q("7.6 in")))
sketch3.addConstraint(Sketcher.Constraint("DistanceX", -1, 1, 57, 3, Q("10.5 in")))
sketch3.addConstraint(Sketcher.Constraint("DistanceX", 5, 3, -1, 1, Q("8.35 in")))
sketch3.addConstraint(Sketcher.Constraint("DistanceX", 13, 3, -1, 1, Q("5.45 in")))
sketch3.addConstraint(Sketcher.Constraint("DistanceX", 21, 3, -1, 1, Q("2.55 in")))
sketch3.addConstraint(Sketcher.Constraint("DistanceX", -1, 1, 29, 3, Q("0.35 in")))
sketch3.addConstraint(Sketcher.Constraint("DistanceX", -1, 1, 37, 3, Q("3.25 in")))
sketch3.addConstraint(Sketcher.Constraint("DistanceX", -1, 1, 45, 3, Q("6.15 in")))
sketch3.addConstraint(Sketcher.Constraint("DistanceX", -1, 1, 53, 3, Q("9.05 in")))
pocket1 = body.newObject("PartDesign::Pocket", "Pocket")
pocket1.Profile = sketch3
pocket1.Type = "ThroughAll"

doc.recompute()
